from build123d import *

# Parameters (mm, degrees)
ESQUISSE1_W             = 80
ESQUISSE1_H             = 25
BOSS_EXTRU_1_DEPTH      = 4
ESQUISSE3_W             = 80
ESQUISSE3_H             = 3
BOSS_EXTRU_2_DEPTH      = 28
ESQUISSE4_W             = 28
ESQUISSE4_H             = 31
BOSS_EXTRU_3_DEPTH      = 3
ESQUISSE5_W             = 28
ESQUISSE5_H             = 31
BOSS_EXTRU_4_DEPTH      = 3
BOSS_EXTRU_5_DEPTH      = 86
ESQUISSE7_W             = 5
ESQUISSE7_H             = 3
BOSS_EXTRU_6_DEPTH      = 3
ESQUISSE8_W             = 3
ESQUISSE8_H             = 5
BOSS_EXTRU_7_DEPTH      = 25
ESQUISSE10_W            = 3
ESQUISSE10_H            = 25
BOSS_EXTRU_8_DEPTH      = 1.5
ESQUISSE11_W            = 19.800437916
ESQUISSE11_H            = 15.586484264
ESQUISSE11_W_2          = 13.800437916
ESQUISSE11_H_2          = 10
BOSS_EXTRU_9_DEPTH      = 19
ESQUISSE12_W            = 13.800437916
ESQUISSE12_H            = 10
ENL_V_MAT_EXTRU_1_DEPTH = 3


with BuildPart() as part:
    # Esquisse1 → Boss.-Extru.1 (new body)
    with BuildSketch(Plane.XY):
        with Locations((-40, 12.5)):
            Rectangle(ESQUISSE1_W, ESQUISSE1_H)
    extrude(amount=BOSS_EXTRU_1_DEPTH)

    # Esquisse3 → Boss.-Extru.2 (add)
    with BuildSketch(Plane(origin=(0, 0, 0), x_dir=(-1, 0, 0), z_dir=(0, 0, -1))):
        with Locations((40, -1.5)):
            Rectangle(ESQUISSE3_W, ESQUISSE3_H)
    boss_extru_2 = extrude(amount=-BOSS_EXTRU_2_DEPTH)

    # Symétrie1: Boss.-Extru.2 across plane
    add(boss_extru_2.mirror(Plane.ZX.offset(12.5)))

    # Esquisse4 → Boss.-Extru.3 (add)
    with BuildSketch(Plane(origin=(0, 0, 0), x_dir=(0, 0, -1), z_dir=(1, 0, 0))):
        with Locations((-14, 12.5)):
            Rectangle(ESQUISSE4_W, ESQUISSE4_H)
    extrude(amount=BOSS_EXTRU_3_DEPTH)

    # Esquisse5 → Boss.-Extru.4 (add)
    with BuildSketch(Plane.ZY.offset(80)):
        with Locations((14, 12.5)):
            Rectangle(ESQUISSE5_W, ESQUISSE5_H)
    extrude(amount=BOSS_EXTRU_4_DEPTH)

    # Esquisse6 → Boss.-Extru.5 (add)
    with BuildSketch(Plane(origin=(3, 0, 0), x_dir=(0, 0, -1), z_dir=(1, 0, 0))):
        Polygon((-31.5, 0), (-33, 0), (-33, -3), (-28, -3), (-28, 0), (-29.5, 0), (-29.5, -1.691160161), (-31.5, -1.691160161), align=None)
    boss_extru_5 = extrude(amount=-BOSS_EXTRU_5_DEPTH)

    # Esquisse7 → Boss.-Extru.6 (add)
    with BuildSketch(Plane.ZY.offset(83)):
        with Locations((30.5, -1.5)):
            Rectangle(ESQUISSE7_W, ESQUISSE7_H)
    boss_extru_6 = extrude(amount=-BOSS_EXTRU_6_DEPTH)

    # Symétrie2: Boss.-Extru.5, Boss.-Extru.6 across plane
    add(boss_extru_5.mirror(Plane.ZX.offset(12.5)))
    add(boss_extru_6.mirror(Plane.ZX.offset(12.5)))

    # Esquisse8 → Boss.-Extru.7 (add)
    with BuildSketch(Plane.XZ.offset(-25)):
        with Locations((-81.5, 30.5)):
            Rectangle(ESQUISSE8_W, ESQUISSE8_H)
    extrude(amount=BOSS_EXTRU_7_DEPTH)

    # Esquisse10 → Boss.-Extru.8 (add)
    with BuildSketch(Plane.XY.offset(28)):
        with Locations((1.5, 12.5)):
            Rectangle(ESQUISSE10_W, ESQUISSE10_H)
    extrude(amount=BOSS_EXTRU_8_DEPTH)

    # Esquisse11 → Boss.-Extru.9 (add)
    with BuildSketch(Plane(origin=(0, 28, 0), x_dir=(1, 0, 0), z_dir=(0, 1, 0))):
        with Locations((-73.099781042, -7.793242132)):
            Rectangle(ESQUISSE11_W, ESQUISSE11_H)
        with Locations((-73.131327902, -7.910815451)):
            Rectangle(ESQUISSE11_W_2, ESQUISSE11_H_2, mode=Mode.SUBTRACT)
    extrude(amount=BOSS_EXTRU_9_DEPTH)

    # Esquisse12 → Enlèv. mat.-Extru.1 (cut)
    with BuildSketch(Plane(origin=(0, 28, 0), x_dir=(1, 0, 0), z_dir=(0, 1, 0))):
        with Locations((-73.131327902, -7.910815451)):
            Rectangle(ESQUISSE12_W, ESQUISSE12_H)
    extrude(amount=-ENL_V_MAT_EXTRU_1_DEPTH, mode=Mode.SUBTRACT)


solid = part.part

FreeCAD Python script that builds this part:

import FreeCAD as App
import Part
import Sketcher


def add_polygon(sketch, points):
    """Adds a closed chain of lines whose ends are joined by coincident constraints."""
    first, n = sketch.GeometryCount, len(points)
    for a, b in zip(points, points[1:] + points[:1]):
        sketch.addGeometry(Part.LineSegment(App.Vector(*a, 0), App.Vector(*b, 0)), False)
    for i in range(n):
        sketch.addConstraint(Sketcher.Constraint("Coincident", first + i, 2, first + (i + 1) % n, 1))

doc = App.newDocument("Part")
params = doc.addObject("Spreadsheet::Sheet", "Params")
for row, (alias, value) in enumerate([
    ("sketch1_width", "80 mm"),
    ("sketch1_height", "25 mm"),
    ("pad1_length", "4 mm"),
    ("sketch2_width", "80 mm"),
    ("sketch2_height", "3 mm"),
    ("pad2_length", "28 mm"),
    ("sketch3_width", "31 mm"),
    ("sketch3_height", "28 mm"),
    ("pad3_length", "3 mm"),
    ("sketch4_width", "31 mm"),
    ("sketch4_height", "28 mm"),
    ("pad4_length", "3 mm"),
    ("sketch5_width", "3 mm"),
    ("sketch5_height", "5 mm"),
    ("sketch5_height2", "2 mm"),
    ("pad5_length", "86 mm"),
    ("sketch6_width", "3 mm"),
    ("sketch6_height", "5 mm"),
    ("pad6_length", "3 mm"),
    ("sketch7_width", "3 mm"),
    ("sketch7_height", "5 mm"),
    ("pad7_length", "25 mm"),
    ("sketch8_width", "3 mm"),
    ("sketch8_height", "25 mm"),
    ("pad8_length", "1.5 mm"),
    ("sketch9_height", "10 mm"),
    ("pad9_length", "19 mm"),
    ("sketch10_height", "10 mm"),
    ("pocket1_length", "3 mm"),
], start=1):
    params.set(f"A{row}", alias)
    params.set(f"B{row}", "=" + value)
    params.setAlias(f"B{row}", alias)

body = doc.addObject("PartDesign::Body", "Body")

sketch1 = body.newObject("Sketcher::SketchObject", "Sketch")
sketch1.AttachmentSupport = (doc.getObject("XY_Plane"), [""])
sketch1.MapMode = "FlatFace"
add_polygon(sketch1, [(-80, 25), (-80, 0), (0, 0), (0, 25)])
sketch1.addConstraint([
    Sketcher.Constraint("Vertical", 0),
    Sketcher.Constraint("Horizontal", 1),
    Sketcher.Constraint("Vertical", 2),
    Sketcher.Constraint("Horizontal", 3),
    Sketcher.Constraint("Coincident", 1, 2, -1, 1),
    Sketcher.Constraint("DistanceX", 1, 1, 1, 2, 80.0),
    Sketcher.Constraint("DistanceY", 0, 2, 0, 1, 25.0),
])
sketch1.setExpression("Constraints[9]", "Params.sketch1_width")
sketch1.setExpression("Constraints[10]", "Params.sketch1_height")
pad1 = body.newObject("PartDesign::Pad", "Pad")
pad1.Profile = sketch1
pad1.setExpression("Length", "Params.pad1_length")

sketch2 = body.newObject("Sketcher::SketchObject", "Sketch001")
sketch2.AttachmentSupport = (doc.getObject("XY_Plane"), [""])
sketch2.MapMode = "FlatFace"
add_polygon(sketch2, [(0, 0), (0, -3), (-80, -3), (-80, 0)])
sketch2.addConstraint([
    Sketcher.Constraint("Vertical", 0),
    Sketcher.Constraint("Horizontal", 1),
    Sketcher.Constraint("Vertical", 2),
    Sketcher.Constraint("Horizontal", 3),
    Sketcher.Constraint("Coincident", 3, 2, -1, 1),
    Sketcher.Constraint("DistanceX", 1, 2, 1, 1, 80.0),
    Sketcher.Constraint("DistanceY", 0, 2, 0, 1, 3.0),
])
sketch2.setExpression("Constraints[9]", "Params.sketch2_width")
sketch2.setExpression("Constraints[10]", "Params.sketch2_height")
pad2 = body.newObject("PartDesign::Pad", "Pad001")
pad2.Profile = sketch2
pad2.setExpression("Length", "Params.pad2_length")
doc.recompute()

datumplane = body.newObject("PartDesign::Plane", "DatumPlane")
datumplane.AttachmentSupport = (doc.getObject("XZ_Plane"), [""])
datumplane.MapMode = "FlatFace"
datumplane.AttachmentOffset = App.Placement(App.Vector(0, 0, -12.5), App.Rotation())
mirrored = body.newObject("PartDesign::Mirrored", "Mirrored")
mirrored.Originals = [pad2]
mirrored.MirrorPlane = (datumplane, [""])
body.Tip = mirrored

sketch3 = body.newObject("Sketcher::SketchObject", "Sketch002")
sketch3.AttachmentSupport = (doc.getObject("YZ_Plane"), [""])
sketch3.MapMode = "FlatFace"
add_polygon(sketch3, [(28, 28), (-3, 28), (-3, 0), (28, 0)])
sketch3.addConstraint([
    Sketcher.Constraint("Horizontal", 0),
    Sketcher.Constraint("Vertical", 1),
    Sketcher.Constraint("Horizontal", 2),
    Sketcher.Constraint("Vertical", 3),
    Sketcher.Constraint("PointOnObject", 1, 2, -1),
    Sketcher.Constraint("DistanceX", 0, 2, 0, 1, 31.0),
    Sketcher.Constraint("DistanceY", 1, 2, 1, 1, 28.0),
    Sketcher.Constraint("DistanceX", 0, 2, -1, 1, 3.0),
])
sketch3.setExpression("Constraints[9]", "Params.sketch3_width")
sketch3.setExpression("Constraints[10]", "Params.sketch3_height")
pad3 = body.newObject("PartDesign::Pad", "Pad002")
pad3.Profile = sketch3
pad3.setExpression("Length", "Params.pad3_length")

sketch4 = body.newObject("Sketcher::SketchObject", "Sketch003")
sketch4.AttachmentSupport = (doc.getObject("YZ_Plane"), [""])
sketch4.MapMode = "FlatFace"
sketch4.AttachmentOffset = App.Placement(App.Vector(0, 0, -80), App.Rotation())
add_polygon(sketch4, [(28, 0), (-3, 0), (-3, 28), (28, 28)])
sketch4.addConstraint([
    Sketcher.Constraint("Horizontal", 0),
    Sketcher.Constraint("Vertical", 1),
    Sketcher.Constraint("Horizontal", 2),
    Sketcher.Constraint("Vertical", 3),
    Sketcher.Constraint("PointOnObject", 0, 2, -1),
    Sketcher.Constraint("DistanceX", 0, 2, 0, 1, 31.0),
    Sketcher.Constraint("DistanceY", 1, 1, 1, 2, 28.0),
    Sketcher.Constraint("DistanceX", 0, 2, -1, 1, 3.0),
])
sketch4.setExpression("Constraints[9]", "Params.sketch4_width")
sketch4.setExpression("Constraints[10]", "Params.sketch4_height")
pad4 = body.newObject("PartDesign::Pad", "Pad003")
pad4.Profile = sketch4
pad4.setExpression("Length", "Params.pad4_length")
pad4.Reversed = True

sketch5 = body.newObject("Sketcher::SketchObject", "Sketch004")
sketch5.AttachmentSupport = (doc.getObject("YZ_Plane"), [""])
sketch5.MapMode = "FlatFace"
sketch5.AttachmentOffset = App.Placement(App.Vector(0, 0, 3), App.Rotation())
add_polygon(sketch5, [(0, 31.5), (0, 33), (-3, 33), (-3, 28), (0, 28), (0, 29.5), (-1.69116, 29.5), (-1.69116, 31.5)])
sketch5.addConstraint([
    Sketcher.Constraint("Vertical", 0),
    Sketcher.Constraint("Horizontal", 1),
    Sketcher.Constraint("Vertical", 2),
    Sketcher.Constraint("Horizontal", 3),
    Sketcher.Constraint("Vertical", 4),
    Sketcher.Constraint("Horizontal", 5),
    Sketcher.Constraint("Vertical", 6),
    Sketcher.Constraint("Horizontal", 7),
    Sketcher.Constraint("PointOnObject", 0, 2, -2),
    Sketcher.Constraint("PointOnObject", 3, 2, -2),
    Sketcher.Constraint("Equal", 0, 4),
    Sketcher.Constraint("DistanceX", 1, 2, 1, 1, 3.0),
    Sketcher.Constraint("DistanceY", 2, 2, 2, 1, 5.0),
    Sketcher.Constraint("DistanceY", 6, 1, 6, 2, 2.0),
    Sketcher.Constraint("DistanceY", -1, 1, 0, 2, 33.0),
    Sketcher.Constraint("DistanceX", 5, 2, 5, 1, 1.69116),
])
sketch5.setExpression("Constraints[19]", "Params.sketch5_width")
sketch5.setExpression("Constraints[20]", "Params.sketch5_height")
sketch5.setExpression("Constraints[21]", "Params.sketch5_height2")
pad5 = body.newObject("PartDesign::Pad", "Pad004")
pad5.Profile = sketch5
pad5.setExpression("Length", "Params.pad5_length")
pad5.Reversed = True

sketch6 = body.newObject("Sketcher::SketchObject", "Sketch005")
sketch6.AttachmentSupport = (doc.getObject("YZ_Plane"), [""])
sketch6.MapMode = "FlatFace"
sketch6.AttachmentOffset = App.Placement(App.Vector(0, 0, -83), App.Rotation())
add_polygon(sketch6, [(0, 28), (-3, 28), (-3, 33), (0, 33)])
sketch6.addConstraint([
    Sketcher.Constraint("Horizontal", 0),
    Sketcher.Constraint("Vertical", 1),
    Sketcher.Constraint("Horizontal", 2),
    Sketcher.Constraint("Vertical", 3),
    Sketcher.Constraint("PointOnObject", 2, 2, -2),
    Sketcher.Constraint("DistanceX", 0, 2, 0, 1, 3.0),
    Sketcher.Constraint("DistanceY", 1, 1, 1, 2, 5.0),
    Sketcher.Constraint("DistanceY", -1, 1, 0, 2, 28.0),
])
sketch6.setExpression("Constraints[9]", "Params.sketch6_width")
sketch6.setExpression("Constraints[10]", "Params.sketch6_height")
pad6 = body.newObject("PartDesign::Pad", "Pad005")
pad6.Profile = sketch6
pad6.setExpression("Length", "Params.pad6_length")
doc.recompute()

datumplane2 = body.newObject("PartDesign::Plane", "DatumPlane001")
datumplane2.AttachmentSupport = (doc.getObject("XZ_Plane"), [""])
datumplane2.MapMode = "FlatFace"
datumplane2.AttachmentOffset = App.Placement(App.Vector(0, 0, -12.5), App.Rotation())
mirrored2 = body.newObject("PartDesign::Mirrored", "Mirrored001")
mirrored2.Originals = [pad5, pad6]
mirrored2.MirrorPlane = (datumplane2, [""])
body.Tip = mirrored2

sketch7 = body.newObject("Sketcher::SketchObject", "Sketch006")
sketch7.AttachmentSupport = (doc.getObject("XZ_Plane"), [""])
sketch7.MapMode = "FlatFace"
sketch7.AttachmentOffset = App.Placement(App.Vector(0, 0, -25), App.Rotation())
add_polygon(sketch7, [(-83, 33), (-83, 28), (-80, 28), (-80, 33)])
sketch7.addConstraint([
    Sketcher.Constraint("Vertical", 0),
    Sketcher.Constraint("Horizontal", 1),
    Sketcher.Constraint("Vertical", 2),
    Sketcher.Constraint("Horizontal", 3),
    Sketcher.Constraint("DistanceX", 1, 1, 1, 2, 3.0),
    Sketcher.Constraint("DistanceY", 0, 2, 0, 1, 5.0),
    Sketcher.Constraint("DistanceX", 0, 2, -1, 1, 83.0),
    Sketcher.Constraint("DistanceY", -1, 1, 0, 2, 28.0),
])
sketch7.setExpression("Constraints[8]", "Params.sketch7_width")
sketch7.setExpression("Constraints[9]", "Params.sketch7_height")
pad7 = body.newObject("PartDesign::Pad", "Pad006")
pad7.Profile = sketch7
pad7.setExpression("Length", "Params.pad7_length")

sketch8 = body.newObject("Sketcher::SketchObject", "Sketch007")
sketch8.AttachmentSupport = (doc.getObject("XY_Plane"), [""])
sketch8.MapMode = "FlatFace"
sketch8.AttachmentOffset = App.Placement(App.Vector(0, 0, 28), App.Rotation())
add_polygon(sketch8, [(0, 25), (0, 0), (3, 0), (3, 25)])
sketch8.addConstraint([
    Sketcher.Constraint("Vertical", 0),
    Sketcher.Constraint("Horizontal", 1),
    Sketcher.Constraint("Vertical", 2),
    Sketcher.Constraint("Horizontal", 3),
    Sketcher.Constraint("Coincident", 0, 2, -1, 1),
    Sketcher.Constraint("DistanceX", 1, 1, 1, 2, 3.0),
    Sketcher.Constraint("DistanceY", 0, 2, 0, 1, 25.0),
])
sketch8.setExpression("Constraints[9]", "Params.sketch8_width")
sketch8.setExpression("Constraints[10]", "Params.sketch8_height")
pad8 = body.newObject("PartDesign::Pad", "Pad007")
pad8.Profile = sketch8
pad8.setExpression("Length", "Params.pad8_length")

sketch9 = body.newObject("Sketcher::SketchObject", "Sketch008")
sketch9.AttachmentSupport = (doc.getObject("XZ_Plane"), [""])
sketch9.MapMode = "FlatFace"
sketch9.AttachmentOffset = App.Placement(App.Vector(0, 0, -28), App.Rotation())
add_polygon(sketch9, [(-83, 0), (-83, 15.586484), (-63.199562, 15.586484), (-63.199562, 0)])
add_polygon(sketch9, [(-66.231109, 12.910815), (-80.031547, 12.910815), (-80.031547, 2.910815), (-66.231109, 2.910815)])
sketch9.addConstraint([
    Sketcher.Constraint("Vertical", 0),
    Sketcher.Constraint("Horizontal", 1),
    Sketcher.Constraint("Vertical", 2),
    Sketcher.Constraint("Horizontal", 3),
    Sketcher.Constraint("Horizontal", 4),
    Sketcher.Constraint("Vertical", 5),
    Sketcher.Constraint("Horizontal", 6),
    Sketcher.Constraint("Vertical", 7),
    Sketcher.Constraint("PointOnObject", 2, 2, -1),
    Sketcher.Constraint("DistanceY", 5, 2, 5, 1, 10.0),
    Sketcher.Constraint("DistanceX", 0, 2, -1, 1, 83.0),
    Sketcher.Constraint("DistanceX", 1, 1, 1, 2, 19.800438),
    Sketcher.Constraint("DistanceX", 4, 2, 4, 1, 13.800438),
    Sketcher.Constraint("DistanceY", 0, 1, 0, 2, 15.586484),
    Sketcher.Constraint("DistanceX", 6, 2, -1, 1, 66.231109),
    Sketcher.Constraint("DistanceY", 4, 2, 0, 2, 2.675669),
])
sketch9.setExpression("Constraints[17]", "Params.sketch9_height")
pad9 = body.newObject("PartDesign::Pad", "Pad008")
pad9.Profile = sketch9
pad9.setExpression("Length", "Params.pad9_length")
pad9.Reversed = True

sketch10 = body.newObject("Sketcher::SketchObject", "Sketch009")
sketch10.AttachmentSupport = (doc.getObject("XZ_Plane"), [""])
sketch10.MapMode = "FlatFace"
sketch10.AttachmentOffset = App.Placement(App.Vector(0, 0, -28), App.Rotation())
add_polygon(sketch10, [(-80.031547, 2.910815), (-80.031547, 12.910815), (-66.231109, 12.910815), (-66.231109, 2.910815)])
sketch10.addConstraint([
    Sketcher.Constraint("Vertical", 0),
    Sketcher.Constraint("Horizontal", 1),
    Sketcher.Constraint("Vertical", 2),
    Sketcher.Constraint("Horizontal", 3),
    Sketcher.Constraint("DistanceY", 0, 1, 0, 2, 10.0),
    Sketcher.Constraint("DistanceX", 1, 1, 1, 2, 13.800438),
    Sketcher.Constraint("DistanceX", 1, 2, -1, 1, 66.231109),
    Sketcher.Constraint("DistanceY", -1, 1, 0, 2, 12.910815),
])
sketch10.setExpression("Constraints[8]", "Params.sketch10_height")
pocket1 = body.newObject("PartDesign::Pocket", "Pocket")
pocket1.Profile = sketch10
pocket1.setExpression("Length", "Params.pocket1_length")
pocket1.Reversed = True

doc.recompute()
